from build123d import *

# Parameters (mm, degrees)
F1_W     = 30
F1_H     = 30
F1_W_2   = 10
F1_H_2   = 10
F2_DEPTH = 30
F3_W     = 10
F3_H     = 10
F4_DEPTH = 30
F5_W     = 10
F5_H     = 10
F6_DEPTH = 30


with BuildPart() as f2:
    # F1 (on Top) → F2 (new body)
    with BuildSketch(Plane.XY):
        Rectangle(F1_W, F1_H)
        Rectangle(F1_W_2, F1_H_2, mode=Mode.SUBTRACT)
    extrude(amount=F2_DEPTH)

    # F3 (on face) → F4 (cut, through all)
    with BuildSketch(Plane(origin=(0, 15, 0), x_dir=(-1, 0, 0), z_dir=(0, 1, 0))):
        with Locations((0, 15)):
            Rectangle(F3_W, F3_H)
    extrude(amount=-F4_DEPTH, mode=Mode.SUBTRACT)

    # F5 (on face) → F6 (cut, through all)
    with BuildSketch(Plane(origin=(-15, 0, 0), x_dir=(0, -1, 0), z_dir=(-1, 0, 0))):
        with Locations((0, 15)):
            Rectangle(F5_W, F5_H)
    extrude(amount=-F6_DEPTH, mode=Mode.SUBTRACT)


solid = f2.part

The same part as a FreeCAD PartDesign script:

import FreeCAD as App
import Part
import Sketcher
from FreeCAD import Vector


def add_polygon(sketch, points):
    """Adds a closed chain of lines whose ends are joined by coincident constraints."""
    first, n = sketch.GeometryCount, len(points)
    for a, b in zip(points, points[1:] + points[:1]):
        sketch.addGeometry(Part.LineSegment(App.Vector(*a, 0), App.Vector(*b, 0)), False)
    for i in range(n):
        sketch.addConstraint(Sketcher.Constraint("Coincident", first + i, 2, first + (i + 1) % n, 1))

doc = App.newDocument("Part")
body = doc.addObject("PartDesign::Body", "Body")

# Sketch on XY plane
sketch1 = body.newObject("Sketcher::SketchObject", "Sketch")
sketch1.AttachmentSupport = (doc.getObject("XY_Plane"), [""])
sketch1.MapMode = "FlatFace"
add_polygon(sketch1, [(-15, 15), (-15, -15), (15, -15), (15, 15)])  # lines 0-3
add_polygon(sketch1, [(5, -5), (-5, -5), (-5, 5), (5, 5)])  # lines 4-7
sketch1.addConstraint(Sketcher.Constraint("Vertical", 0))
sketch1.addConstraint(Sketcher.Constraint("Horizontal", 1))
sketch1.addConstraint(Sketcher.Constraint("Vertical", 2))
sketch1.addConstraint(Sketcher.Constraint("Horizontal", 3))
sketch1.addConstraint(Sketcher.Constraint("Horizontal", 4))
sketch1.addConstraint(Sketcher.Constraint("Vertical", 5))
sketch1.addConstraint(Sketcher.Constraint("Horizontal", 6))
sketch1.addConstraint(Sketcher.Constraint("Vertical", 7))
sketch1.addConstraint(Sketcher.Constraint("Symmetric", 0, 2, 2, 2, -1, 1))
sketch1.addConstraint(Sketcher.Constraint("Symmetric", 4, 2, 6, 2, -1, 1))
sketch1.addConstraint(Sketcher.Constraint("Equal", 3, 0))
sketch1.addConstraint(Sketcher.Constraint("Equal", 6, 5))
sketch1.addConstraint(Sketcher.Constraint("DistanceX", 1, 1, 1, 2, 30.0))
sketch1.addConstraint(Sketcher.Constraint("DistanceX", 4, 2, 4, 1, 10.0))
pad1 = body.newObject("PartDesign::Pad", "Pad")
pad1.Profile = sketch1
pad1.Length = 30

# Sketch on XZ plane
sketch2 = body.newObject("Sketcher::SketchObject", "Sketch001")
sketch2.AttachmentSupport = (doc.getObject("XZ_Plane"), [""])
sketch2.MapMode = "FlatFace"
sketch2.AttachmentOffset = App.Placement(Vector(0, 0, -15), App.Rotation())
add_polygon(sketch2, [(5, 20), (5, 10), (-5, 10), (-5, 20)])  # lines 0-3
sketch2.addConstraint(Sketcher.Constraint("Vertical", 0))
sketch2.addConstraint(Sketcher.Constraint("Horizontal", 1))
sketch2.addConstraint(Sketcher.Constraint("Vertical", 2))
sketch2.addConstraint(Sketcher.Constraint("Horizontal", 3))
sketch2.addConstraint(Sketcher.Constraint("Equal", 3, 0))
sketch2.addConstraint(Sketcher.Constraint("DistanceX", 1, 2, 1, 1, 10.0))
sketch2.addConstraint(Sketcher.Constraint("DistanceX", -1, 1, 0, 2, 5.0))
sketch2.addConstraint(Sketcher.Constraint("DistanceY", -1, 1, 0, 2, 10.0))
pocket1 = body.newObject("PartDesign::Pocket", "Pocket")
pocket1.Profile = sketch2
pocket1.Type = "ThroughAll"
pocket1.Reversed = True

# Sketch on YZ plane
sketch3 = body.newObject("Sketcher::SketchObject", "Sketch002")
sketch3.AttachmentSupport = (doc.getObject("YZ_Plane"), [""])
sketch3.MapMode = "FlatFace"
sketch3.AttachmentOffset = App.Placement(Vector(0, 0, -15), App.Rotation())
add_polygon(sketch3, [(5, 20), (5, 10), (-5, 10), (-5, 20)])  # lines 0-3
sketch3.addConstraint(Sketcher.Constraint("Vertical", 0))
sketch3.addConstraint(Sketcher.Constraint("Horizontal", 1))
sketch3.addConstraint(Sketcher.Constraint("Vertical", 2))
sketch3.addConstraint(Sketcher.Constraint("Horizontal", 3))
sketch3.addConstraint(Sketcher.Constraint("Equal", 3, 0))
sketch3.addConstraint(Sketcher.Constraint("DistanceX", 1, 2, 1, 1, 10.0))
sketch3.addConstraint(Sketcher.Constraint("DistanceX", -1, 1, 0, 2, 5.0))
sketch3.addConstraint(Sketcher.Constraint("DistanceY", -1, 1, 0, 2, 10.0))
pocket2 = body.newObject("PartDesign::Pocket", "Pocket001")
pocket2.Profile = sketch3
pocket2.Type = "ThroughAll"
pocket2.Reversed = True

doc.recompute()
